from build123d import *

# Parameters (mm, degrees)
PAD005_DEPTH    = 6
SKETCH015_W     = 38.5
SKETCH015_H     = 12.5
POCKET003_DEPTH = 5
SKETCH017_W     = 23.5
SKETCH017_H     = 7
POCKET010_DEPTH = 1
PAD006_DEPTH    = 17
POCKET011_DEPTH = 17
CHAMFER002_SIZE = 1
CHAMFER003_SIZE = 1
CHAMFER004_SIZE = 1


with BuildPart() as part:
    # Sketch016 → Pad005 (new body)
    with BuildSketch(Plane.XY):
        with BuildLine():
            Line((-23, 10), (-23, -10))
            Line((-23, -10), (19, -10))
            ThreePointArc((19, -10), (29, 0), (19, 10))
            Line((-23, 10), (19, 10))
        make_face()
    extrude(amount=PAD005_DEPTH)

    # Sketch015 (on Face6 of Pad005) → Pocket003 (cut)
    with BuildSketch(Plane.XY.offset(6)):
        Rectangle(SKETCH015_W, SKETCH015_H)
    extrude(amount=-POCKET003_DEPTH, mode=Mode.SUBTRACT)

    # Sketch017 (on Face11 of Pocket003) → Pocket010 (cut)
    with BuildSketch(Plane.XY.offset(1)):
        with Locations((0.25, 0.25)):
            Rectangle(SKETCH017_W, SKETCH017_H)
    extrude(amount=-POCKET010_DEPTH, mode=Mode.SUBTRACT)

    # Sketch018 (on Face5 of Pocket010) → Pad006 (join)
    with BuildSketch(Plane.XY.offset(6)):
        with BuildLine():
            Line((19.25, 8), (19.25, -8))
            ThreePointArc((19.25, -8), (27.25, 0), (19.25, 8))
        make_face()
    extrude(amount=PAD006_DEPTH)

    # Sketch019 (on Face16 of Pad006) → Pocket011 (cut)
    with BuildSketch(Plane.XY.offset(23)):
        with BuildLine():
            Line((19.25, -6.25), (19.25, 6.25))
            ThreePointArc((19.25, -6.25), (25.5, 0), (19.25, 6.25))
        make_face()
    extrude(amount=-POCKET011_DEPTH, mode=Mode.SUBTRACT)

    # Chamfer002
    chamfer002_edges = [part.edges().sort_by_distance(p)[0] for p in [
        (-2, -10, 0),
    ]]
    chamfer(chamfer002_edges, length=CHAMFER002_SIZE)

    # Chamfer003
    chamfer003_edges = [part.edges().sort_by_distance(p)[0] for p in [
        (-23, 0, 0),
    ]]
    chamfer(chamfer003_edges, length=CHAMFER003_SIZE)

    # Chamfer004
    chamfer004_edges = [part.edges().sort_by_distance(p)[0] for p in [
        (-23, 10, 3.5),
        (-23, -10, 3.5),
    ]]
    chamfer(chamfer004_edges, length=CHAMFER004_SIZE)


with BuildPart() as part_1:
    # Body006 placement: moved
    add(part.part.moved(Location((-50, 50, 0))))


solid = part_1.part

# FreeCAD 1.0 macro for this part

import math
import FreeCAD as App
import Part
import Sketcher

V = App.Vector


def edges_at(feature, points):
    """Names of the edges that pass closest to the given points."""
    edges = feature.Shape.Edges
    near = lambda p: min(range(len(edges)), key=lambda i: edges[i].distToShape(Part.Vertex(*p))[0])
    return sorted({f"Edge{near(p) + 1}" for p in points})


def add_polygon(sketch, points):
    """Adds a closed chain of lines whose ends are joined by coincident constraints."""
    first, n = sketch.GeometryCount, len(points)
    for a, b in zip(points, points[1:] + points[:1]):
        sketch.addGeometry(Part.LineSegment(App.Vector(*a, 0), App.Vector(*b, 0)), False)
    for i in range(n):
        sketch.addConstraint(Sketcher.Constraint("Coincident", first + i, 2, first + (i + 1) % n, 1))

doc = App.newDocument("Part")
body = doc.addObject("PartDesign::Body", "Body")

# Sketch on XY plane
sketch1 = body.newObject("Sketcher::SketchObject", "Sketch")
sketch1.AttachmentSupport = (doc.getObject("XY_Plane"), [""])
sketch1.MapMode = "FlatFace"
sketch1.addGeometry(Part.LineSegment(V(-23, 10, 0), V(-23, -10, 0)), False)
sketch1.addGeometry(Part.LineSegment(V(-23, -10, 0), V(19, -10, 0)), False)
sketch1.addGeometry(Part.ArcOfCircle(Part.Circle(V(19, 0, 0), V(0, 0, 1), 10), math.radians(-90), math.radians(90)), False)
sketch1.addGeometry(Part.LineSegment(V(19, 10, 0), V(-23, 10, 0)), False)
sketch1.addConstraint(Sketcher.Constraint("Coincident", 0, 2, 1, 1))
sketch1.addConstraint(Sketcher.Constraint("Tangent", 1, 2, 2, 1))
sketch1.addConstraint(Sketcher.Constraint("Tangent", 2, 2, 3, 1))
sketch1.addConstraint(Sketcher.Constraint("Coincident", 3, 2, 0, 1))
sketch1.addConstraint(Sketcher.Constraint("Vertical", 0))
sketch1.addConstraint(Sketcher.Constraint("Horizontal", 1))
sketch1.addConstraint(Sketcher.Constraint("Horizontal", 3))
sketch1.addConstraint(Sketcher.Constraint("PointOnObject", 2, 3, -1))
sketch1.addConstraint(Sketcher.Constraint("Radius", 2, 10.0))
sketch1.addConstraint(Sketcher.Constraint("DistanceX", 1, 1, 1, 2, 42.0))
sketch1.addConstraint(Sketcher.Constraint("DistanceX", -1, 1, 2, 3, 19.0))
pad1 = body.newObject("PartDesign::Pad", "Pad")
pad1.Profile = sketch1
pad1.Length = 6

# Sketch on XY plane
sketch2 = body.newObject("Sketcher::SketchObject", "Sketch001")
sketch2.AttachmentSupport = (doc.getObject("XY_Plane"), [""])
sketch2.MapMode = "FlatFace"
sketch2.AttachmentOffset = App.Placement(V(0, 0, 6), App.Rotation())
add_polygon(sketch2, [(-19.25, 6.25), (-19.25, -6.25), (19.25, -6.25), (19.25, 6.25)])  # lines 0-3
sketch2.addConstraint(Sketcher.Constraint("Vertical", 0))
sketch2.addConstraint(Sketcher.Constraint("Horizontal", 1))
sketch2.addConstraint(Sketcher.Constraint("Vertical", 2))
sketch2.addConstraint(Sketcher.Constraint("Horizontal", 3))
sketch2.addConstraint(Sketcher.Constraint("Symmetric", 0, 2, 2, 2, -1, 1))
sketch2.addConstraint(Sketcher.Constraint("DistanceX", 1, 1, 1, 2, 38.5))
sketch2.addConstraint(Sketcher.Constraint("DistanceY", 0, 2, 0, 1, 12.5))
pocket1 = body.newObject("PartDesign::Pocket", "Pocket")
pocket1.Profile = sketch2
pocket1.Length = 5

# Sketch on XY plane
sketch3 = body.newObject("Sketcher::SketchObject", "Sketch002")
sketch3.AttachmentSupport = (doc.getObject("XY_Plane"), [""])
sketch3.MapMode = "FlatFace"
sketch3.AttachmentOffset = App.Placement(V(0, 0, 1), App.Rotation())
add_polygon(sketch3, [(-11.5, 3.75), (-11.5, -3.25), (12, -3.25), (12, 3.75)])  # lines 0-3
sketch3.addConstraint(Sketcher.Constraint("Vertical", 0))
sketch3.addConstraint(Sketcher.Constraint("Horizontal", 1))
sketch3.addConstraint(Sketcher.Constraint("Vertical", 2))
sketch3.addConstraint(Sketcher.Constraint("Horizontal", 3))
sketch3.addConstraint(Sketcher.Constraint("DistanceY", 0, 2, 0, 1, 7.0))
sketch3.addConstraint(Sketcher.Constraint("DistanceX", 1, 1, 1, 2, 23.5))
sketch3.addConstraint(Sketcher.Constraint("DistanceX", -1, 1, 1, 2, 12.0))
sketch3.addConstraint(Sketcher.Constraint("DistanceY", 0, 2, -1, 1, 3.25))
pocket2 = body.newObject("PartDesign::Pocket", "Pocket001")
pocket2.Profile = sketch3
pocket2.Length = 1

# Sketch on XY plane
sketch4 = body.newObject("Sketcher::SketchObject", "Sketch003")
sketch4.AttachmentSupport = (doc.getObject("XY_Plane"), [""])
sketch4.MapMode = "FlatFace"
sketch4.AttachmentOffset = App.Placement(V(0, 0, 6), App.Rotation())
sketch4.addGeometry(Part.LineSegment(V(19.25, 8, 0), V(19.25, -8, 0)), False)
sketch4.addGeometry(Part.ArcOfCircle(Part.Circle(V(19.25, 0, 0), V(0, 0, 1), 8), math.radians(-90), math.radians(90)), False)
sketch4.addConstraint(Sketcher.Constraint("Coincident", 0, 1, 1, 2))
sketch4.addConstraint(Sketcher.Constraint("Coincident", 1, 1, 0, 2))
sketch4.addConstraint(Sketcher.Constraint("Vertical", 0))
sketch4.addConstraint(Sketcher.Constraint("PointOnObject", 1, 3, -1))
sketch4.addConstraint(Sketcher.Constraint("Vertical", 1, 3, 0, 1))
sketch4.addConstraint(Sketcher.Constraint("Radius", 1, 8.0))
sketch4.addConstraint(Sketcher.Constraint("DistanceX", -1, 1, 1, 3, 19.25))
pad2 = body.newObject("PartDesign::Pad", "Pad001")
pad2.Profile = sketch4
pad2.Length = 17

# Sketch on XY plane
sketch5 = body.newObject("Sketcher::SketchObject", "Sketch004")
sketch5.AttachmentSupport = (doc.getObject("XY_Plane"), [""])
sketch5.MapMode = "FlatFace"
sketch5.AttachmentOffset = App.Placement(V(0, 0, 23), App.Rotation())
sketch5.addGeometry(Part.LineSegment(V(19.25, 6.25, 0), V(19.25, -6.25, 0)), False)
sketch5.addGeometry(Part.ArcOfCircle(Part.Circle(V(19.25, 0, 0), V(0, 0, 1), 6.25), math.radians(-90), math.radians(90)), False)
sketch5.addConstraint(Sketcher.Constraint("Coincident", 0, 1, 1, 2))
sketch5.addConstraint(Sketcher.Constraint("Coincident", 1, 1, 0, 2))
sketch5.addConstraint(Sketcher.Constraint("Vertical", 0))
sketch5.addConstraint(Sketcher.Constraint("PointOnObject", 1, 3, -1))
sketch5.addConstraint(Sketcher.Constraint("Vertical", 1, 3, 0, 1))
sketch5.addConstraint(Sketcher.Constraint("Radius", 1, 6.25))
sketch5.addConstraint(Sketcher.Constraint("DistanceX", -1, 1, 1, 3, 19.25))
pocket3 = body.newObject("PartDesign::Pocket", "Pocket002")
pocket3.Profile = sketch5
pocket3.Length = 17
doc.recompute()

chamfer = body.newObject("PartDesign::Chamfer", "Chamfer")
chamfer.Base = (pocket3, edges_at(pocket3, [(-2, -10, 0)]))
chamfer.Size = 1
doc.recompute()

chamfer2 = body.newObject("PartDesign::Chamfer", "Chamfer001")
chamfer2.Base = (chamfer, edges_at(chamfer, [(-23, 0, 0)]))
chamfer2.Size = 1
doc.recompute()

chamfer3 = body.newObject("PartDesign::Chamfer", "Chamfer002")
chamfer3.Base = (chamfer2, edges_at(chamfer2, [(-23, 10, 3.5), (-23, -10, 3.5)]))
chamfer3.Size = 1
body2 = doc.addObject("PartDesign::Body", "Body001")
doc.recompute()

body.Placement = App.Placement(V(-50, 50, 0), App.Rotation(V(0, 0, 1), 0))
boolean = body2.newObject("PartDesign::Boolean", "Boolean")
boolean.Type = "Fuse"
boolean.addObjects([body])

doc.recompute()
